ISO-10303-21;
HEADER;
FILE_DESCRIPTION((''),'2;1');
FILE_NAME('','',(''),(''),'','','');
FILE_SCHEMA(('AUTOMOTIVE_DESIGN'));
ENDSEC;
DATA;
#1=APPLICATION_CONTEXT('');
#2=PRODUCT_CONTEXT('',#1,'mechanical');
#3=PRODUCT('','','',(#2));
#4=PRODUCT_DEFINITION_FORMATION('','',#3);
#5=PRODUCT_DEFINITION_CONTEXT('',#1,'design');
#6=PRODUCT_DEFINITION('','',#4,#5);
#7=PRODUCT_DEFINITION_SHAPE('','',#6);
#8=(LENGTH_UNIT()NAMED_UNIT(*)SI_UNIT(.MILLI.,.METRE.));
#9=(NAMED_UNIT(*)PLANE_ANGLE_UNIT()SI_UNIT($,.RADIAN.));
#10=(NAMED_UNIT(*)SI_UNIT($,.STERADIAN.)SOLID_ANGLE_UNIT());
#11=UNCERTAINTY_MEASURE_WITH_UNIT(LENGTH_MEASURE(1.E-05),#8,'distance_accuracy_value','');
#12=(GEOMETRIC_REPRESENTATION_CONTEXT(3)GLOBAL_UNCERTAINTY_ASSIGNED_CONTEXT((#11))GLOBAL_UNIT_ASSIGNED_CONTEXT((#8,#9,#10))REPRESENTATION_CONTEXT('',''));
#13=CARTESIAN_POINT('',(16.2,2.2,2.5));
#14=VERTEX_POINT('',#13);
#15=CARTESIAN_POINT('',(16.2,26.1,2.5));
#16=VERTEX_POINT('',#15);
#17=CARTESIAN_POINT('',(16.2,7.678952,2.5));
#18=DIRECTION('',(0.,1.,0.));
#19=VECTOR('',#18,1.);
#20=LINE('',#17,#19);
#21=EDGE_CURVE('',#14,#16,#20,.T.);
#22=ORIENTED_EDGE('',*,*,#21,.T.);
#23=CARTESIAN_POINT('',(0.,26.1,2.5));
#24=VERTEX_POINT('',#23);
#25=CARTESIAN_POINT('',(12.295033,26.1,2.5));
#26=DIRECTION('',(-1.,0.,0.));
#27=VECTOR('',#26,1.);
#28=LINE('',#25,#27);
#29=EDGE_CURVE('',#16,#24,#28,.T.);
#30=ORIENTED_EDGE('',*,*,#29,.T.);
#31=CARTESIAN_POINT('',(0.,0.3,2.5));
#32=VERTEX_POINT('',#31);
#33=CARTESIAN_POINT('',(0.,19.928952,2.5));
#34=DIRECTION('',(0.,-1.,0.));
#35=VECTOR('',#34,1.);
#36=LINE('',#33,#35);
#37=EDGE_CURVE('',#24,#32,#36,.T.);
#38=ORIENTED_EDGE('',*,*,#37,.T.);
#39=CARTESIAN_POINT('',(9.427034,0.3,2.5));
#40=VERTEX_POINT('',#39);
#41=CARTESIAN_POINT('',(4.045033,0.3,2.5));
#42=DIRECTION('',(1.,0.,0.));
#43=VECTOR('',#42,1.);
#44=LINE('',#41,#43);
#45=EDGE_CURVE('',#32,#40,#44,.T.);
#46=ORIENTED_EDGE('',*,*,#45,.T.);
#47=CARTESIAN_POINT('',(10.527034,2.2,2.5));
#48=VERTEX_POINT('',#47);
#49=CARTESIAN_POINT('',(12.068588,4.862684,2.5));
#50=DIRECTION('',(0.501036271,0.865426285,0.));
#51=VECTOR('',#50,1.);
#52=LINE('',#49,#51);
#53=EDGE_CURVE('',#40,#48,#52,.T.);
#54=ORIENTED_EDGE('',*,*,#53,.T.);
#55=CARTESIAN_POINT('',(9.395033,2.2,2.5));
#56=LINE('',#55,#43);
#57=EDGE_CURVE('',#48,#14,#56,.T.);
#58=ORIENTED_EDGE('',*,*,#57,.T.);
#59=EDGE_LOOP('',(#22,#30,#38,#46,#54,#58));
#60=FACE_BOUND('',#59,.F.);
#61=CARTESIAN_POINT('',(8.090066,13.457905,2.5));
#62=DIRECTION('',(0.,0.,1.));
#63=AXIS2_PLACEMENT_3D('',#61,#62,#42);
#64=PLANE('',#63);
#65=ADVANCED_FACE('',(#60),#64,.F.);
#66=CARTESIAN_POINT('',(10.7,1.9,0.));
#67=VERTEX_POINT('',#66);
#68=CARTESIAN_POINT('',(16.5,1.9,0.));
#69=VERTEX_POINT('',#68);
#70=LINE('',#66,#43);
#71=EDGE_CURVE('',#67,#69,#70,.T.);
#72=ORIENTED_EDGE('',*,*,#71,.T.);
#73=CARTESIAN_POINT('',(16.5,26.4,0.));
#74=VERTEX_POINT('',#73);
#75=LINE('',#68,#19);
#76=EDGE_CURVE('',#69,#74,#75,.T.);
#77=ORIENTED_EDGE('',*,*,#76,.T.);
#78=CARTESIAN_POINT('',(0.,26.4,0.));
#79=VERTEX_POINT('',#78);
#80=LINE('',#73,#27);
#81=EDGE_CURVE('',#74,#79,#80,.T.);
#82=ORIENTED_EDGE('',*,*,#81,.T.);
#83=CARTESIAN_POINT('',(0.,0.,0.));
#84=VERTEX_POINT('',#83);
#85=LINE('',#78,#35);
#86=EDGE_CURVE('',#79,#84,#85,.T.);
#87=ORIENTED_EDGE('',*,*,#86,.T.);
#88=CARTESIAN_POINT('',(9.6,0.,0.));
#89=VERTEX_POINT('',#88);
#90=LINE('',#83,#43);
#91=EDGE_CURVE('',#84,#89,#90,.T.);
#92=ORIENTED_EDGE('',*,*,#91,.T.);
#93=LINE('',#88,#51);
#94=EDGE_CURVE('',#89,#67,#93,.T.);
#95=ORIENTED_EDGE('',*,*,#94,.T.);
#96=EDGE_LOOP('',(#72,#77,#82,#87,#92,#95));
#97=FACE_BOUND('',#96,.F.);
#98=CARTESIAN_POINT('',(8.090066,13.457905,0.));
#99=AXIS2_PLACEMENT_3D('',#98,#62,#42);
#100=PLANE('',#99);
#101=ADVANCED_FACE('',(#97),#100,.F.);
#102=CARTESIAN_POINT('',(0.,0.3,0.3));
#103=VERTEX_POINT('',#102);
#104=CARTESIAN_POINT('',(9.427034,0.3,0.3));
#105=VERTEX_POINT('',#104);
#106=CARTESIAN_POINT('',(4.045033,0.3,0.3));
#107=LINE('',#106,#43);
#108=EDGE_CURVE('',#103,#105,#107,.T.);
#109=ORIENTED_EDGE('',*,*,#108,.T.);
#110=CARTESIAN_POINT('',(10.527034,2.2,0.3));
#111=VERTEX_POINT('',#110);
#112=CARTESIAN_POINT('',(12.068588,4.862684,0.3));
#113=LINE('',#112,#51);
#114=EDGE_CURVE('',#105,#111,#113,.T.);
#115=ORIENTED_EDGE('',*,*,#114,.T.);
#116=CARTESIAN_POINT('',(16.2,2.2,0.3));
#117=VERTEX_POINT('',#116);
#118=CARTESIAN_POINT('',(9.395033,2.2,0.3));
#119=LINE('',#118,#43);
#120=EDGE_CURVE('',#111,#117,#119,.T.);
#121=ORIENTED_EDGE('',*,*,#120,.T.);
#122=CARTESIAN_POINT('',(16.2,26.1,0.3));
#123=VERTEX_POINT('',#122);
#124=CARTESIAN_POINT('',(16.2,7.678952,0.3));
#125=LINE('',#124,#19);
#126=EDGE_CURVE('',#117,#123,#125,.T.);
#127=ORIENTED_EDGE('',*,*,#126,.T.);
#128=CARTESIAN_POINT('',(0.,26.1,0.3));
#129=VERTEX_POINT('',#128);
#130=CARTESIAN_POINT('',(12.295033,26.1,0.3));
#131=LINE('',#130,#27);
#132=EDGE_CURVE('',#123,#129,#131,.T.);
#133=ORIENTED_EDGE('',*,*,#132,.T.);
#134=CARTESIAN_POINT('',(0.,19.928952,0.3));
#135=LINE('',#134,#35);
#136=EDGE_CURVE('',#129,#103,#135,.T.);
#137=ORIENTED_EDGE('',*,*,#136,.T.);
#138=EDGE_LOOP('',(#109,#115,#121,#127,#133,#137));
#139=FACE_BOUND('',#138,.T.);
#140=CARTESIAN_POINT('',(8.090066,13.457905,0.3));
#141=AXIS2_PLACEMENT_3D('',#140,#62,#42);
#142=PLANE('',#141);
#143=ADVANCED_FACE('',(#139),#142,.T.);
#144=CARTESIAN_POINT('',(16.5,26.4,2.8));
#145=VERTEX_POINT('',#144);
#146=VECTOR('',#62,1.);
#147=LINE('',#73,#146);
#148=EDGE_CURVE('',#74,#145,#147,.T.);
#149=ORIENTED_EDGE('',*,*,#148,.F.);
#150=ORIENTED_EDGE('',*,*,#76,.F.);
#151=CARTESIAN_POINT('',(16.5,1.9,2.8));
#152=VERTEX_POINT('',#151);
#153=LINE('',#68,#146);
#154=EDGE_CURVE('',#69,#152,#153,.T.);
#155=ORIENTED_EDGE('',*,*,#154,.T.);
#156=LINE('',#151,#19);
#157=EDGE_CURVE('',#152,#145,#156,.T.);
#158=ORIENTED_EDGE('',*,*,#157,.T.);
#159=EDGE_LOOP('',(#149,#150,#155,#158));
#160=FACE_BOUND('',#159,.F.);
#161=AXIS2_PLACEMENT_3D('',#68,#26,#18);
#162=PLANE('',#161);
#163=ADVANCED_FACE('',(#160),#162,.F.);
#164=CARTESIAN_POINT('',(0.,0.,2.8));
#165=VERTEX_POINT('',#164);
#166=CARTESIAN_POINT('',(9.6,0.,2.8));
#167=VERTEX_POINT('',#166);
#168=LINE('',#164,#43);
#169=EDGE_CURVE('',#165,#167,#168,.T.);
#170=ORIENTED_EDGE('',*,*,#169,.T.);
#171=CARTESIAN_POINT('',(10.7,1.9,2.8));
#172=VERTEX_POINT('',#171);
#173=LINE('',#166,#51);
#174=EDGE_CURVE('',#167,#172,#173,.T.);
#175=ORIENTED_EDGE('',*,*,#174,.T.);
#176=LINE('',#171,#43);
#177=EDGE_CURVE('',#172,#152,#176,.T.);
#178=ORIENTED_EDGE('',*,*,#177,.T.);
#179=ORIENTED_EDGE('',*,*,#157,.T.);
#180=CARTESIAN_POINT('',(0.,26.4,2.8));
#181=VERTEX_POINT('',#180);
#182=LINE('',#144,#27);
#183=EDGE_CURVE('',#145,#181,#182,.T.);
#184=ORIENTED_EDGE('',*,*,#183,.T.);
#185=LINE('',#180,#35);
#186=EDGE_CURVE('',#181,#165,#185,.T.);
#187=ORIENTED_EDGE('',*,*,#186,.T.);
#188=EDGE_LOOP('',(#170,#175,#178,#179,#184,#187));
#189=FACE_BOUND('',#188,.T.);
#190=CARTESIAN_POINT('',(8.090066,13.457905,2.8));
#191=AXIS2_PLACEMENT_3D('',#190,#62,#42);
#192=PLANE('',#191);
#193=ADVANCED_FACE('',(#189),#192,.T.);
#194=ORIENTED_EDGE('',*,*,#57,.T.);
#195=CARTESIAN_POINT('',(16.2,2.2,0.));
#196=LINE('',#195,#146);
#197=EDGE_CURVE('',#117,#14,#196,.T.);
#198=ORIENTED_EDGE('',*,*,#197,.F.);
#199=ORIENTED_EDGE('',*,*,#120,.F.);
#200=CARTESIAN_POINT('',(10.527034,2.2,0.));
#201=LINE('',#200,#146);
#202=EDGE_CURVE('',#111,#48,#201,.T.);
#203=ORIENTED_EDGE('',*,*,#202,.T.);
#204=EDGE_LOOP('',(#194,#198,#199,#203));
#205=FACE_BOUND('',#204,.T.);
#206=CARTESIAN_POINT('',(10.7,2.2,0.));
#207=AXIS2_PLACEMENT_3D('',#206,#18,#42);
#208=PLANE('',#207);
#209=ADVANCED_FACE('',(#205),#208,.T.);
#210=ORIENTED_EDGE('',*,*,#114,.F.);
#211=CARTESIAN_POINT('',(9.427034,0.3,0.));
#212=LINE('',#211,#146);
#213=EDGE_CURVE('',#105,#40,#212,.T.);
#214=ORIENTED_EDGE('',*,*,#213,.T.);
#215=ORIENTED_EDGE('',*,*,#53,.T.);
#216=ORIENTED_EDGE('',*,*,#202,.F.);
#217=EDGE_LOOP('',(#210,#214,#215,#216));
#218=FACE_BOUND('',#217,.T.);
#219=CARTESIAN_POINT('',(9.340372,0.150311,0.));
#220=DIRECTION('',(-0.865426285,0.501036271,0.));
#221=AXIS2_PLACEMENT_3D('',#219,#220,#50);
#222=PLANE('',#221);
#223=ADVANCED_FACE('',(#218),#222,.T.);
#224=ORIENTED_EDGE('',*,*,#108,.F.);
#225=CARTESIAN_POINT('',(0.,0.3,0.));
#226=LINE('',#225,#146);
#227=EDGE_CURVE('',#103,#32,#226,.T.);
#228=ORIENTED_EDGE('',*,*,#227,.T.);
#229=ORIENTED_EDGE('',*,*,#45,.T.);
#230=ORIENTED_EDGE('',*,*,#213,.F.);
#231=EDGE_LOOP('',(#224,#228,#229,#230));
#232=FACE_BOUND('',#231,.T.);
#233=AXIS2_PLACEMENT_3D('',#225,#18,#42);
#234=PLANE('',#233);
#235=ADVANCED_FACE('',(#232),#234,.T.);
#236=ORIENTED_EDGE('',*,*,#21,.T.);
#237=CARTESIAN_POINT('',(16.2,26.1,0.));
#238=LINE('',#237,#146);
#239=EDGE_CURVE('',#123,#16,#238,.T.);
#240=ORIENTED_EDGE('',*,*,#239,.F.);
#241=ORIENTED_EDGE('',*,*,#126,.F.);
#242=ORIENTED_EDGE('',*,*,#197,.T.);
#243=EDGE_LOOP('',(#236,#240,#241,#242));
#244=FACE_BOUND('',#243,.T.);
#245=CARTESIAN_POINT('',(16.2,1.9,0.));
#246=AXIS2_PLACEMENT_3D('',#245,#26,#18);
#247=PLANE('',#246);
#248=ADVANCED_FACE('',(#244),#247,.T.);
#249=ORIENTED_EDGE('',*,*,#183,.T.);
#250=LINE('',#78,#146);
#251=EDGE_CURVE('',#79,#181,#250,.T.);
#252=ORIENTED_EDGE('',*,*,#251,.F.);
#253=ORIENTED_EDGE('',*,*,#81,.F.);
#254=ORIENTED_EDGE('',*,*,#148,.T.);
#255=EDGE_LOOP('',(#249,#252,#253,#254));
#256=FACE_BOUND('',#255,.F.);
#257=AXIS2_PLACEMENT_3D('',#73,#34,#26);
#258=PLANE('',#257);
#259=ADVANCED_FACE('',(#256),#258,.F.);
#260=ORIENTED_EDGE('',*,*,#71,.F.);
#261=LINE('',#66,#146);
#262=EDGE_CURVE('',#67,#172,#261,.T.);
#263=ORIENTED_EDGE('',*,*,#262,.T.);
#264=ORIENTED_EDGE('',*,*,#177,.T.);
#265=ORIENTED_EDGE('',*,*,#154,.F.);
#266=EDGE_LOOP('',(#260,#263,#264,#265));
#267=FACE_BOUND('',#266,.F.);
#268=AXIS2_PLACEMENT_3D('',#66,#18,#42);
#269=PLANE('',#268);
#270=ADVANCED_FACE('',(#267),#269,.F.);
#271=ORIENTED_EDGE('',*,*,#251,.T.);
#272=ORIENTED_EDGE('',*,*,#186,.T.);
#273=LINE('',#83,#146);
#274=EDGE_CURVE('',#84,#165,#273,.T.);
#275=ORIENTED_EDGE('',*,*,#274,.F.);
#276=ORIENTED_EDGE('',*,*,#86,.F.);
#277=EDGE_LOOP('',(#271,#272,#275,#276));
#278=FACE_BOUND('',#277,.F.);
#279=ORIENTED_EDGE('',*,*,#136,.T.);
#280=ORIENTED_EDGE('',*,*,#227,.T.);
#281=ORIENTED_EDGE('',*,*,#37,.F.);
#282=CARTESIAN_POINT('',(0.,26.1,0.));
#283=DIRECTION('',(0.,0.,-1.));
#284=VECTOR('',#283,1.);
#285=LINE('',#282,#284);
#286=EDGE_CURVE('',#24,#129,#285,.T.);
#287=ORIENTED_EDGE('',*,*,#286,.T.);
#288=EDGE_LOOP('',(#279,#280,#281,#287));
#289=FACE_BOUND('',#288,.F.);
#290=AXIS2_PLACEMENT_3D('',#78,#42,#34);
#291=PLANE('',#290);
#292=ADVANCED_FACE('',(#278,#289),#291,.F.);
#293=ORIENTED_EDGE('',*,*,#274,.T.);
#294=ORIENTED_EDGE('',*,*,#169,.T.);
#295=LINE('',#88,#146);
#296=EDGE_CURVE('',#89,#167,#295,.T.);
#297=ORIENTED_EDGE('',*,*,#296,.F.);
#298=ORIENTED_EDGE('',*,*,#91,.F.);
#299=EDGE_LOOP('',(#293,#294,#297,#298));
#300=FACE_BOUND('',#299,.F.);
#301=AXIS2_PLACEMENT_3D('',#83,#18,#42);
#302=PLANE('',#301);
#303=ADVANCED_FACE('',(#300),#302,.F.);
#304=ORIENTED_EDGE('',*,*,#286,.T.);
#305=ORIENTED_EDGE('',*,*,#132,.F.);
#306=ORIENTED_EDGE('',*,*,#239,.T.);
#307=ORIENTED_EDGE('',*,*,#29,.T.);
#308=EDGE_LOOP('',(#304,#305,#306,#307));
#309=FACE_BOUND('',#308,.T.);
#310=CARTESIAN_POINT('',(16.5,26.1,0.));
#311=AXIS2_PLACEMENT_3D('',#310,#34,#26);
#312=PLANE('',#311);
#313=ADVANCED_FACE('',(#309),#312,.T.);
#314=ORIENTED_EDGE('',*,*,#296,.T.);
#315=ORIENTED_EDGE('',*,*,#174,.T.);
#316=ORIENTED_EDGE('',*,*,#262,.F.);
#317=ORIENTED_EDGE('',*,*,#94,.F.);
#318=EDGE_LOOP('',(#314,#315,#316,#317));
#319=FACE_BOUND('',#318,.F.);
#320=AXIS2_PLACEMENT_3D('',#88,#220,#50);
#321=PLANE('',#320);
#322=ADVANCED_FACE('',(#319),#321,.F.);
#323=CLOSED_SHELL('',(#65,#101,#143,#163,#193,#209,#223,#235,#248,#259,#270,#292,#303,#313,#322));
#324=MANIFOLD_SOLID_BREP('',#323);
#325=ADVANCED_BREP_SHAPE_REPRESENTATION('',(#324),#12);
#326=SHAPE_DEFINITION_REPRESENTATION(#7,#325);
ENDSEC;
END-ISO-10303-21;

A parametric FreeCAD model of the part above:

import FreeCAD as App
import Part
import Sketcher


def faces_at(feature, points):
    """Names of the faces that lie closest to the given points."""
    faces = feature.Shape.Faces
    near = lambda p: min(range(len(faces)), key=lambda i: faces[i].distToShape(Part.Vertex(*p))[0])
    return sorted({f"Face{near(p) + 1}" for p in points})

doc = App.newDocument("Part")
body = doc.addObject("PartDesign::Body", "Body")

# Sketch on XY plane
sketch1 = body.newObject("Sketcher::SketchObject", "Sketch")
sketch1.AttachmentSupport = (doc.getObject("XY_Plane"), [""])
sketch1.MapMode = "FlatFace"
sketch1.addGeometry([
    Part.LineSegment(App.Vector(10.7, 1.9, 0), App.Vector(16.5, 1.9, 0)),  # 0
    Part.LineSegment(App.Vector(16.5, 1.9, 0), App.Vector(16.5, 26.4, 0)),  # 1
    Part.LineSegment(App.Vector(16.5, 26.4, 0), App.Vector(0, 26.4, 0)),  # 2
    Part.LineSegment(App.Vector(0, 26.4, 0), App.Vector(0, 0, 0)),  # 3
    Part.LineSegment(App.Vector(0, 0, 0), App.Vector(9.6, 0, 0)),  # 4
    Part.LineSegment(App.Vector(9.6, 0, 0), App.Vector(10.7, 1.9, 0)),  # 5
], False)
sketch1.addConstraint([
    Sketcher.Constraint("Coincident", 0, 2, 1, 1),
    Sketcher.Constraint("Coincident", 1, 2, 2, 1),
    Sketcher.Constraint("Coincident", 2, 2, 3, 1),
    Sketcher.Constraint("Coincident", 3, 2, 4, 1),
    Sketcher.Constraint("Coincident", 4, 2, 5, 1),
    Sketcher.Constraint("Coincident", 5, 2, 0, 1),
    Sketcher.Constraint("Horizontal", 0),
    Sketcher.Constraint("Vertical", 1),
    Sketcher.Constraint("Horizontal", 2),
    Sketcher.Constraint("Vertical", 3),
    Sketcher.Constraint("Horizontal", 4),
    Sketcher.Constraint("Coincident", 3, 2, -1, 1),
    Sketcher.Constraint("DistanceX", 0, 1, 0, 2, 5.8),
    Sketcher.Constraint("DistanceX", 2, 2, 2, 1, 16.5),
    Sketcher.Constraint("DistanceX", 4, 1, 4, 2, 9.6),
    Sketcher.Constraint("DistanceY", 1, 1, 1, 2, 24.5),
    Sketcher.Constraint("DistanceY", 3, 2, 3, 1, 26.4),
])
pad1 = body.newObject("PartDesign::Pad", "Pad")
pad1.Profile = sketch1
pad1.Length = 2.8
doc.recompute()

thickness = body.newObject("PartDesign::Thickness", "Thickness")
thickness.Base = (pad1, faces_at(pad1, [(0, 13.2, 1.4)]))
thickness.Value = 0.3
thickness.Reversed = True
thickness.Join = "Intersection"

doc.recompute()
